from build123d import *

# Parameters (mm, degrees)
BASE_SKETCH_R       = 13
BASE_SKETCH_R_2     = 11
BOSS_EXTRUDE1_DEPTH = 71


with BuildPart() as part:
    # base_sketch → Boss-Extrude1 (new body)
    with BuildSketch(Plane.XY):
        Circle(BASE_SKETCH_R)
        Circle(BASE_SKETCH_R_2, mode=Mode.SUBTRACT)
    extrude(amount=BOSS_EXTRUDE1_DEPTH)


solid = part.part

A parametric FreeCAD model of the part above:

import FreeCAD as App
import Part
import Sketcher
from FreeCAD import Vector

doc = App.newDocument("Part")
body = doc.addObject("PartDesign::Body", "Body")

# Sketch on XY plane
sketch1 = body.newObject("Sketcher::SketchObject", "Sketch")
sketch1.AttachmentSupport = (doc.getObject("XY_Plane"), [""])
sketch1.MapMode = "FlatFace"
sketch1.addGeometry([
    Part.Circle(Vector(0, 0, 0), Vector(0, 0, 1), 13),
    Part.Circle(Vector(0, 0, 0), Vector(0, 0, 1), 11),
], False)
sketch1.addConstraint([
    Sketcher.Constraint("Coincident", 0, 3, -1, 1),
    Sketcher.Constraint("Coincident", 1, 3, -1, 1),
    Sketcher.Constraint("Diameter", 0, 26.0),
    Sketcher.Constraint("Diameter", 1, 22.0),
])
pad1 = body.newObject("PartDesign::Pad", "Pad")
pad1.Profile = sketch1
pad1.Length = 71

doc.recompute()
